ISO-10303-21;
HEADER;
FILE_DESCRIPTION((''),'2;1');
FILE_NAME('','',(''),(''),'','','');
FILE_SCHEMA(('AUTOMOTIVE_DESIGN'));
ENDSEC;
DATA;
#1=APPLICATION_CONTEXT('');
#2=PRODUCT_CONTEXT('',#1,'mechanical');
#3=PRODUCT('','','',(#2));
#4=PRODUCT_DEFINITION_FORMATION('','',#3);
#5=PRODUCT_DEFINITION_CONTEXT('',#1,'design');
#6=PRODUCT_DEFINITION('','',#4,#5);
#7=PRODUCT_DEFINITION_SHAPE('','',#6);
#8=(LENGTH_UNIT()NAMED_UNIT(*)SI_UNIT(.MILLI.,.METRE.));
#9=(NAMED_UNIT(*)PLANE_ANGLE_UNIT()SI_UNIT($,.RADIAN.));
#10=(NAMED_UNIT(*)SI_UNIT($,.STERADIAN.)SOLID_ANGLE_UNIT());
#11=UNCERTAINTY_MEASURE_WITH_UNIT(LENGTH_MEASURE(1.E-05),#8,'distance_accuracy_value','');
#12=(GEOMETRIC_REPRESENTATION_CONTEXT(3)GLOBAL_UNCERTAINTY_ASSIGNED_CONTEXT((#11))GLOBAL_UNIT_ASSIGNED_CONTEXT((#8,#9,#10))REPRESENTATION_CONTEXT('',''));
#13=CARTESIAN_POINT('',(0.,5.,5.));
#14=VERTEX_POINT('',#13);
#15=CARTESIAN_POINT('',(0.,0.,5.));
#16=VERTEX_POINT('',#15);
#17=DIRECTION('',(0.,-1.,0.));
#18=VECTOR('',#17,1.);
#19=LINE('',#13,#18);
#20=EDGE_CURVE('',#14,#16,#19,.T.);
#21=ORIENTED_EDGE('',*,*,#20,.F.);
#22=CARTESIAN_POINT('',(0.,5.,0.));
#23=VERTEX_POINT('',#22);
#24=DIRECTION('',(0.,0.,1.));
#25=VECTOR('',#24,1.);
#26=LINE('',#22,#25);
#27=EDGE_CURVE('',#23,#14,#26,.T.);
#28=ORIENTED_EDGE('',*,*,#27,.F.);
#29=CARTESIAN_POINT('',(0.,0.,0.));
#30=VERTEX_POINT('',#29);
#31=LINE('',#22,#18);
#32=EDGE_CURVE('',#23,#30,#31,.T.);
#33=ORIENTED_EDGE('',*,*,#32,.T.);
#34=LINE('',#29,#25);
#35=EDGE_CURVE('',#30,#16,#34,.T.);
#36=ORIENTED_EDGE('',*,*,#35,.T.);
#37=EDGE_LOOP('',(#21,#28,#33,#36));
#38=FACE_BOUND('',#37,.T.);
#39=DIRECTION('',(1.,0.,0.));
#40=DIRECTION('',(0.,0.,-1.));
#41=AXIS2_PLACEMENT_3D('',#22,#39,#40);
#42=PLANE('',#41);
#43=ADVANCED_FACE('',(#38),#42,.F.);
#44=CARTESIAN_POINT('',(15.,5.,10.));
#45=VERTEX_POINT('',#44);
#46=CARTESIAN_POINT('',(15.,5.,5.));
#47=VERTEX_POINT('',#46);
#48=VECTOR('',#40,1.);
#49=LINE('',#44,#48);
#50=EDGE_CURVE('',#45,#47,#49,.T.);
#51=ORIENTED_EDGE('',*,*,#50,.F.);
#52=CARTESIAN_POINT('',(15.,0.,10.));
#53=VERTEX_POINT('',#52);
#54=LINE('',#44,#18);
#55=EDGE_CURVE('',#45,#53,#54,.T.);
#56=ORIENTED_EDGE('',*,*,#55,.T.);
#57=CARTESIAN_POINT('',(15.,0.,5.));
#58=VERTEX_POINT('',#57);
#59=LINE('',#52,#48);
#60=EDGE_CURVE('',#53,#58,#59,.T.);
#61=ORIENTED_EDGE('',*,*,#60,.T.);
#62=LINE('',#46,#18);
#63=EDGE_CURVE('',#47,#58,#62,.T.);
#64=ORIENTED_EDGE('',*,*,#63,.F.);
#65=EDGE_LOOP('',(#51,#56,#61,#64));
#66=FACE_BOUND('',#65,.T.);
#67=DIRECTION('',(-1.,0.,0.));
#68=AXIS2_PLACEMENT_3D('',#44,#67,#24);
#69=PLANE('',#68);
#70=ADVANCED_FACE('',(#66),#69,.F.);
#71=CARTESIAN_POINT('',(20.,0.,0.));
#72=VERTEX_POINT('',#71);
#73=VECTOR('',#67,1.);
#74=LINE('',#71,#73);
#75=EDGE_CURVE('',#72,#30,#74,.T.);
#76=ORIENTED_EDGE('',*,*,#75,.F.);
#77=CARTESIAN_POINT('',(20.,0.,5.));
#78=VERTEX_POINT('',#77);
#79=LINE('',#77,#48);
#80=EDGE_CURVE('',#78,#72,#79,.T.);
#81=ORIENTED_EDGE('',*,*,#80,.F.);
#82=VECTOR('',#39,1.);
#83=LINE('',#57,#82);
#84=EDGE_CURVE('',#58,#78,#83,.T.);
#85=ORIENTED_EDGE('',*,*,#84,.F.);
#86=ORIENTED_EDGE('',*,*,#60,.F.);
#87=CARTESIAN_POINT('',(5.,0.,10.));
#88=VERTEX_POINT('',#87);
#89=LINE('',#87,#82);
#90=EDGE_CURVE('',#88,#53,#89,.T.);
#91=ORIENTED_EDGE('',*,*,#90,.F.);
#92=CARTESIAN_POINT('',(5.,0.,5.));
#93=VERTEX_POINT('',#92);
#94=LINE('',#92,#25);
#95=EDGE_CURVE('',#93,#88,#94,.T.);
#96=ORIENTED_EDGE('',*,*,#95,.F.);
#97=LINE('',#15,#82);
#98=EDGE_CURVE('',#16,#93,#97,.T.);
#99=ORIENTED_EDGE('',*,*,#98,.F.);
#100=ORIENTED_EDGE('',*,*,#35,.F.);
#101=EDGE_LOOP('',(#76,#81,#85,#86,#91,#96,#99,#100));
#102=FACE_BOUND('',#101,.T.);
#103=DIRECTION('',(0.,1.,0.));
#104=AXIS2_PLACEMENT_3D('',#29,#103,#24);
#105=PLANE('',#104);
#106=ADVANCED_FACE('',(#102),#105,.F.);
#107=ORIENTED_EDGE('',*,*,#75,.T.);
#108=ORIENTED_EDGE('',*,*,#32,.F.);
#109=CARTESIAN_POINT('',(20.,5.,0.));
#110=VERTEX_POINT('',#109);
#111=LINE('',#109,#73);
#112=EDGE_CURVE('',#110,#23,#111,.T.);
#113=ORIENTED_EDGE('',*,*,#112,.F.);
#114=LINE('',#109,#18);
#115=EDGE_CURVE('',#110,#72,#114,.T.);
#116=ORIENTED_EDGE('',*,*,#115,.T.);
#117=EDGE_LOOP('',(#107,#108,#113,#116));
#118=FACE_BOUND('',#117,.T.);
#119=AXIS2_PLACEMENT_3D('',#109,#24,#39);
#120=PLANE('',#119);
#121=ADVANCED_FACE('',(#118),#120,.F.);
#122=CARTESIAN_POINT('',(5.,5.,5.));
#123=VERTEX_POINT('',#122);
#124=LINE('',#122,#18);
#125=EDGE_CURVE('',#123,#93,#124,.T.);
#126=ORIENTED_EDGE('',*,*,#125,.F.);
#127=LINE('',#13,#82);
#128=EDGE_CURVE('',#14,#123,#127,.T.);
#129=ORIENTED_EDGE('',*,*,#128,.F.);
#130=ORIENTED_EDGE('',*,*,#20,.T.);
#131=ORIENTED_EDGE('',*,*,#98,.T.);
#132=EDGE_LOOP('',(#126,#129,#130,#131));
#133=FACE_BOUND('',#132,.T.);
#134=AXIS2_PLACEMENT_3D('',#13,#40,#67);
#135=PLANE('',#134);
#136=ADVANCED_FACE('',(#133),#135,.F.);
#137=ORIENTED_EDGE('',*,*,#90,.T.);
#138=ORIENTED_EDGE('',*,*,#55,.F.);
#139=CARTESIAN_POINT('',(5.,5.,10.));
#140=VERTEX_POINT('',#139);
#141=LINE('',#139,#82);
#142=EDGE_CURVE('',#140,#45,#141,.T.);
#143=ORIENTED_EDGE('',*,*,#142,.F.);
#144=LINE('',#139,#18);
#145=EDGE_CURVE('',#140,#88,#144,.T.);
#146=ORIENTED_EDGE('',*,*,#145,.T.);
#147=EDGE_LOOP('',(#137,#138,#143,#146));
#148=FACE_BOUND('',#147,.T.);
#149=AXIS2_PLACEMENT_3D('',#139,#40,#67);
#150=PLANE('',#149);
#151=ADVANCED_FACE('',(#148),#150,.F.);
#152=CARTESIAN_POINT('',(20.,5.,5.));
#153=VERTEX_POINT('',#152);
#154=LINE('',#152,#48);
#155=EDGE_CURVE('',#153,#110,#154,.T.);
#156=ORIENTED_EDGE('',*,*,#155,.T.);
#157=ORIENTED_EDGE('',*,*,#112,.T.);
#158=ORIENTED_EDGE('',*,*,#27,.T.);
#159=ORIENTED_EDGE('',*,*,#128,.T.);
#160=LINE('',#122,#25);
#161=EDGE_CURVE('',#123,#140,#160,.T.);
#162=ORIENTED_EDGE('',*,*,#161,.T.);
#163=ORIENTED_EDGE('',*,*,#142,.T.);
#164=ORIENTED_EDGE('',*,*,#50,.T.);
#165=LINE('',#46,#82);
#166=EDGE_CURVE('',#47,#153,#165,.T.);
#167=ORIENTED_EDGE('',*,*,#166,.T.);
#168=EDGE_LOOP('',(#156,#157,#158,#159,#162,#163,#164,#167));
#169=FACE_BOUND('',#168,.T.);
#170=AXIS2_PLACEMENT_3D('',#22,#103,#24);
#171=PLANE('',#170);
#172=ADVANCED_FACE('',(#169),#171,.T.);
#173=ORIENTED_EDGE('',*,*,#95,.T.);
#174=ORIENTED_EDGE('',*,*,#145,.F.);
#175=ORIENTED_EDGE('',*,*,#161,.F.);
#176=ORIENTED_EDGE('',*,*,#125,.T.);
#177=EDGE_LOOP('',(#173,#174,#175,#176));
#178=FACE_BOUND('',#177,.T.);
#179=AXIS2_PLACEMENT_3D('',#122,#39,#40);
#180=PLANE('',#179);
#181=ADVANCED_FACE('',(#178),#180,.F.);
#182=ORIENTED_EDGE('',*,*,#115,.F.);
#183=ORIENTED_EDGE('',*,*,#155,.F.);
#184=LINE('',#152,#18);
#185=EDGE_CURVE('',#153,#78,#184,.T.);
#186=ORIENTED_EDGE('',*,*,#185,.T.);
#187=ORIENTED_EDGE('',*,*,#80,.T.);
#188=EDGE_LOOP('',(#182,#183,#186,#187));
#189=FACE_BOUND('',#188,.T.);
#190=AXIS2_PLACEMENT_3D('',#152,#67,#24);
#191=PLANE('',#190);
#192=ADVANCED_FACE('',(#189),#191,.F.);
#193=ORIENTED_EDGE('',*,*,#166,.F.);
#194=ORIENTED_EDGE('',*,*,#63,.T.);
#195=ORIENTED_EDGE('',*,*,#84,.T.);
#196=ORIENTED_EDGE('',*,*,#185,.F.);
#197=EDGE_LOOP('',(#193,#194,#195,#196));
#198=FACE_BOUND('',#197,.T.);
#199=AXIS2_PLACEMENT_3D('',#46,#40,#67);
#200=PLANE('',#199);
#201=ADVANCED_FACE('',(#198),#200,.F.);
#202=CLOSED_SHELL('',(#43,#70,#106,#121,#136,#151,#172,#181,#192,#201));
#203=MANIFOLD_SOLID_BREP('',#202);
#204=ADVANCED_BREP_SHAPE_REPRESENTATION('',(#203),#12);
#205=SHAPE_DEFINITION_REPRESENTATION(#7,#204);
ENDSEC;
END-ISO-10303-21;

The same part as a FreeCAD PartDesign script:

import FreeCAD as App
import Part
import Sketcher

V = App.Vector
Q = App.Units.Quantity

doc = App.newDocument("Part")
body = doc.addObject("PartDesign::Body", "Body")

# Sketch on XZ plane
sketch1 = doc.addObject("Sketcher::SketchObject", "Sketch")
body.addObject(sketch1)
sketch1.AttachmentSupport = (doc.XZ_Plane, [""])
sketch1.MapMode = "FlatFace"
sketch1.addGeometry([
    Part.LineSegment(V(0, 0, 0), V(0, 5, 0)),  # 0
    Part.LineSegment(V(0, 5, 0), V(5, 5, 0)),  # 1
    Part.LineSegment(V(5, 5, 0), V(5, 10, 0)),  # 2
    Part.LineSegment(V(5, 10, 0), V(15, 10, 0)),  # 3
    Part.LineSegment(V(15, 10, 0), V(15, 5, 0)),  # 4
    Part.LineSegment(V(15, 5, 0), V(20, 5, 0)),  # 5
    Part.LineSegment(V(20, 5, 0), V(20, 0, 0)),  # 6
    Part.LineSegment(V(20, 0, 0), V(0, 0, 0)),  # 7
], False)
sketch1.addConstraint([
    Sketcher.Constraint("Coincident", 0, 2, 1, 1),
    Sketcher.Constraint("Coincident", 1, 2, 2, 1),
    Sketcher.Constraint("Coincident", 2, 2, 3, 1),
    Sketcher.Constraint("Coincident", 3, 2, 4, 1),
    Sketcher.Constraint("Coincident", 4, 2, 5, 1),
    Sketcher.Constraint("Coincident", 5, 2, 6, 1),
    Sketcher.Constraint("Coincident", 6, 2, 7, 1),
    Sketcher.Constraint("Coincident", 7, 2, 0, 1),
    Sketcher.Constraint("Vertical", 0),
    Sketcher.Constraint("Horizontal", 1),
    Sketcher.Constraint("Vertical", 2),
    Sketcher.Constraint("Horizontal", 3),
    Sketcher.Constraint("Vertical", 4),
    Sketcher.Constraint("Horizontal", 5),
    Sketcher.Constraint("Vertical", 6),
    Sketcher.Constraint("Horizontal", 7),
    Sketcher.Constraint("Coincident", 7, 2, -1, 1),
    Sketcher.Constraint("Horizontal", 1, 2, 4, 2),
    Sketcher.Constraint("Equal", 1, 5),
    Sketcher.Constraint("Equal", 5, 0),
    Sketcher.Constraint("Equal", 0, 2),
    Sketcher.Constraint("DistanceX", 1, 1, 1, 2, Q("5 mm")),
    Sketcher.Constraint("DistanceX", 3, 1, 3, 2, Q("10 mm")),
])
pad1 = doc.addObject("PartDesign::Pad", "Pad")
body.addObject(pad1)
pad1.Profile = sketch1
pad1.Length = 5
pad1.Reversed = True

doc.recompute()
